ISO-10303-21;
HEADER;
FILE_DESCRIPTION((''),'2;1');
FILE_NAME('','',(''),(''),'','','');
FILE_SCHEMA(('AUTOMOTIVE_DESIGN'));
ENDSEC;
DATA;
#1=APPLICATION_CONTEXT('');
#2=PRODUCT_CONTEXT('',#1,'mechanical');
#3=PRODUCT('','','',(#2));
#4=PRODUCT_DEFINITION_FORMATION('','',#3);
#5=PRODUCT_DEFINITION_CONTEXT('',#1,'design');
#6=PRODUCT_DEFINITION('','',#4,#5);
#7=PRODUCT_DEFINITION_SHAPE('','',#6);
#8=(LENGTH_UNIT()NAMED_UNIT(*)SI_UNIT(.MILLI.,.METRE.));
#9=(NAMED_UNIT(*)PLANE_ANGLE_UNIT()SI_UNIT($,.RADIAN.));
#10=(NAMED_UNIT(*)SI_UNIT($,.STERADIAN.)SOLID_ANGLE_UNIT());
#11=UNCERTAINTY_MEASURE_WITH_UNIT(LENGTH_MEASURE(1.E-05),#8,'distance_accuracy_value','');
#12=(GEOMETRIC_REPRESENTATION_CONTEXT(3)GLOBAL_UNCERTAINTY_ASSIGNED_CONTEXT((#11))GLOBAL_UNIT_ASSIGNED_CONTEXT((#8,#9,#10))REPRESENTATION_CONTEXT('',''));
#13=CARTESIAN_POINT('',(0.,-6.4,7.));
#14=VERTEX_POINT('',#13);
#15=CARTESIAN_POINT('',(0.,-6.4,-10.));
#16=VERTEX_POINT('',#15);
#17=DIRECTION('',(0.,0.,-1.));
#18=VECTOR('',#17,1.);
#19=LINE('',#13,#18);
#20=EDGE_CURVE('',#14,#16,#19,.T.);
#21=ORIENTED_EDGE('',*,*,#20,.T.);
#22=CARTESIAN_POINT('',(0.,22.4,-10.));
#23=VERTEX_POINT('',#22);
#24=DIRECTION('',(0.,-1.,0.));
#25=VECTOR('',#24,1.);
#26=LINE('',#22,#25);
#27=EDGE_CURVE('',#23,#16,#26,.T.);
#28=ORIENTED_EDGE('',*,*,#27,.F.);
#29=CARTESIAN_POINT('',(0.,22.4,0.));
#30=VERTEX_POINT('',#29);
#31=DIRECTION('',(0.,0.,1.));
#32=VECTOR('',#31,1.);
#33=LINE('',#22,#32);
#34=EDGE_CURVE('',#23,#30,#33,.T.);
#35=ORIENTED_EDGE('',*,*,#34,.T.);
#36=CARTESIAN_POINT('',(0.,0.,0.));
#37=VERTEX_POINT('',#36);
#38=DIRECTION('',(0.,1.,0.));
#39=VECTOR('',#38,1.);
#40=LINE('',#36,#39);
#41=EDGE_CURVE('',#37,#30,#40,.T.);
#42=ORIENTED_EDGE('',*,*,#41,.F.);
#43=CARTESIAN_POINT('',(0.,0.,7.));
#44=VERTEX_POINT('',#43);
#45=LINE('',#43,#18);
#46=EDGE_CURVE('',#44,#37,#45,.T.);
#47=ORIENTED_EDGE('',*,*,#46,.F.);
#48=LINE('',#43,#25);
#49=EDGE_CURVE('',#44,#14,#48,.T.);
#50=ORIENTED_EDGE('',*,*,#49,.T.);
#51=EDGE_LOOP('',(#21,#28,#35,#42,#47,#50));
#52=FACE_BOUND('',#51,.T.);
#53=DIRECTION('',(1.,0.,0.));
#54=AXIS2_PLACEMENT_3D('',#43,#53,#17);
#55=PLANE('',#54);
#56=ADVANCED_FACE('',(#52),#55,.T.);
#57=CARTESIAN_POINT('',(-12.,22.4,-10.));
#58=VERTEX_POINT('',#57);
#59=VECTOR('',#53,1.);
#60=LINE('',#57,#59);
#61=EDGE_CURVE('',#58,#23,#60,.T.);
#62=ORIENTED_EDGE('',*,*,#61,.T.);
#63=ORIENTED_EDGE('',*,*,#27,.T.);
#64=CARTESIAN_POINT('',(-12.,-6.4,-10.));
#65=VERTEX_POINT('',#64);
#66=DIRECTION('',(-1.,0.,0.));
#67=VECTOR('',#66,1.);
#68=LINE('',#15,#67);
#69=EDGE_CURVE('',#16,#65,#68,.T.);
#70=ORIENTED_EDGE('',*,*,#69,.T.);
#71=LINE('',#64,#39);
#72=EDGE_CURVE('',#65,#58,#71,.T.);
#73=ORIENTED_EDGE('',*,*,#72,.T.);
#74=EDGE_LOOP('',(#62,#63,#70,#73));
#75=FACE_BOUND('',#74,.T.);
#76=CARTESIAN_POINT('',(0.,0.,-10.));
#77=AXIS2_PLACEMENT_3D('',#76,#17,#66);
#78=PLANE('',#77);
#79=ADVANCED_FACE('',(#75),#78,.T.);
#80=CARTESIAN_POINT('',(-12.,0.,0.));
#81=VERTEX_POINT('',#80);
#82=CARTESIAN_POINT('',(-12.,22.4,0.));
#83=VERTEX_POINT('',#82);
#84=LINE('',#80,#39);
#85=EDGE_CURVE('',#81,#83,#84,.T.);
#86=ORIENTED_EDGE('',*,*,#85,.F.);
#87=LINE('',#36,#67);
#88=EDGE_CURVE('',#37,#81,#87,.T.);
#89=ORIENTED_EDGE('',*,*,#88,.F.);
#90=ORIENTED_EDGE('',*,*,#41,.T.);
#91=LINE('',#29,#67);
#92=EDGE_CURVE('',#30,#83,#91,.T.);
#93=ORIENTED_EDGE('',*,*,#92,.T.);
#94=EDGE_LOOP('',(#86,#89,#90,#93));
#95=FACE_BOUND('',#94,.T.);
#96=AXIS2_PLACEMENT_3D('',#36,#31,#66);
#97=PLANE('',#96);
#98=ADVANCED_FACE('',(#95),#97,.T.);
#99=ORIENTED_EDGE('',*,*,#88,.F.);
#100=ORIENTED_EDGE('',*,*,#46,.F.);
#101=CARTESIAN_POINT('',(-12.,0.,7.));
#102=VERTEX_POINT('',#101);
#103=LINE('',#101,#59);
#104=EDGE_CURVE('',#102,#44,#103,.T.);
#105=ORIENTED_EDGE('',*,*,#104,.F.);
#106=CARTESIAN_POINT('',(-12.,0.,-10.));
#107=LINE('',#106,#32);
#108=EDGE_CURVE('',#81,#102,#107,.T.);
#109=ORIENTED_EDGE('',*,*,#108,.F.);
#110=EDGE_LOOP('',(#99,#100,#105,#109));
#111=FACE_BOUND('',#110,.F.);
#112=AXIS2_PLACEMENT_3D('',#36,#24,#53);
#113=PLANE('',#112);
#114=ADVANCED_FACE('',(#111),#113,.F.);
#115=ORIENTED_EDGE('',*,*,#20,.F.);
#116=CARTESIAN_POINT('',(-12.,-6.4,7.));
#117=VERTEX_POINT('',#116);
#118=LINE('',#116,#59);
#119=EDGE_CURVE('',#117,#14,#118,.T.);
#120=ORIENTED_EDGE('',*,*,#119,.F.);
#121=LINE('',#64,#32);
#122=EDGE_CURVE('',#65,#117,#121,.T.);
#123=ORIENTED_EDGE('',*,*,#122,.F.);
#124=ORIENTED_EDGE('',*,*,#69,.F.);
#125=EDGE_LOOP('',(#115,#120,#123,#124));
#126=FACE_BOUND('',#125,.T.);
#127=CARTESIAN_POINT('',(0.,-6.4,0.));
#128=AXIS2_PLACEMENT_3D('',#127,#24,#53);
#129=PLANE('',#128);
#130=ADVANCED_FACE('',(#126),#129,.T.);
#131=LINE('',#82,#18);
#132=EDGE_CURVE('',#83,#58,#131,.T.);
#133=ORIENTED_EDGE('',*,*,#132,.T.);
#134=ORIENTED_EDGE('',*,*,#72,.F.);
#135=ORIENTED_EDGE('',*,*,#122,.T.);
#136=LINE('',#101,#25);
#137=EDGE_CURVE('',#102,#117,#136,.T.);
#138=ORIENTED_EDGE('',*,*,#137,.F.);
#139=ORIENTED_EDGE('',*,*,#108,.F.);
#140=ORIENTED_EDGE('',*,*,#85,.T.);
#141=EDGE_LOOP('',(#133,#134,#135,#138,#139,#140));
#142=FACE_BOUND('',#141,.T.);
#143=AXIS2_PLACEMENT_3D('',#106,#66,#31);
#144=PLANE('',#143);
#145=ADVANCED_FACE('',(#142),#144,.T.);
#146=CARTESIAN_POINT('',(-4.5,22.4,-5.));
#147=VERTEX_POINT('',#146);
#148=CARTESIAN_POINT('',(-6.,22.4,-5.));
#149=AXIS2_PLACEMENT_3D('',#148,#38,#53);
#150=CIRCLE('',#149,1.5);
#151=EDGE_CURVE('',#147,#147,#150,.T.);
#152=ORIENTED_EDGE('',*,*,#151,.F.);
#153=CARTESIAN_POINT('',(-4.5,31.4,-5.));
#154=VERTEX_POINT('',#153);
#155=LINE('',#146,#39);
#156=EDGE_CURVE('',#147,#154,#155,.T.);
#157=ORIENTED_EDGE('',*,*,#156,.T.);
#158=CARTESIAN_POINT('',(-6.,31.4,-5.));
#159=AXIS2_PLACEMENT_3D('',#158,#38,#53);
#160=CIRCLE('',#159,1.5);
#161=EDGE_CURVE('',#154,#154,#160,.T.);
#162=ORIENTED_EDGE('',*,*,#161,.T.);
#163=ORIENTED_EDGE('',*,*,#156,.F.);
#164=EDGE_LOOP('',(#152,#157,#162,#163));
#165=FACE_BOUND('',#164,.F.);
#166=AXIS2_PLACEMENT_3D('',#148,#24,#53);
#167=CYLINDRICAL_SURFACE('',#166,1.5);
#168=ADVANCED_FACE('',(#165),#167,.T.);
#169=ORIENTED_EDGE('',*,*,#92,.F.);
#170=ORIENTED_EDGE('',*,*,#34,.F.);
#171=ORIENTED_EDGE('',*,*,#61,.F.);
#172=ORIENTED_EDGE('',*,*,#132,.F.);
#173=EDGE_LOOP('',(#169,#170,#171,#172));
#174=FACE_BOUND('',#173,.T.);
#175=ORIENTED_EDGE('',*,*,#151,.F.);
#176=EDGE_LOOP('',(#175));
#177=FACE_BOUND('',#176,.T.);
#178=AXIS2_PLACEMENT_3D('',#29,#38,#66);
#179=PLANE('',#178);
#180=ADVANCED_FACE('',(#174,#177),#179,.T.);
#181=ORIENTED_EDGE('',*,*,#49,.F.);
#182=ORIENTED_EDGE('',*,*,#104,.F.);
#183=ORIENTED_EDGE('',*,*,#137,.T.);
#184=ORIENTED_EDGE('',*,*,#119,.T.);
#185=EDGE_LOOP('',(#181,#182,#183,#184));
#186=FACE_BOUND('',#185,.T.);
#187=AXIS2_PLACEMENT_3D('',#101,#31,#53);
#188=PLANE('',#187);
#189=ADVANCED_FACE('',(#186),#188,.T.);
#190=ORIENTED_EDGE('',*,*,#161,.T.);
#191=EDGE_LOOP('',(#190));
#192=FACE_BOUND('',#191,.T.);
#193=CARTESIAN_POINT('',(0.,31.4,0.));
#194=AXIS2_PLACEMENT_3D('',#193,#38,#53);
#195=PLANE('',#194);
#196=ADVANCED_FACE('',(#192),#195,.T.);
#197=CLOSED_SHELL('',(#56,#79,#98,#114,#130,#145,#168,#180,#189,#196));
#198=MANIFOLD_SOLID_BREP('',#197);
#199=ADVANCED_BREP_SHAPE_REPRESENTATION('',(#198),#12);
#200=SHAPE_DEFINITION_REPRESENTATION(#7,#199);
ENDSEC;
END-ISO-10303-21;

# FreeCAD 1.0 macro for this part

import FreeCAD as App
import Part
import Sketcher
Q = App.Units.Quantity


def add_polygon(sketch, points):
    """Adds a closed chain of lines whose ends are joined by coincident constraints."""
    first, n = sketch.GeometryCount, len(points)
    for a, b in zip(points, points[1:] + points[:1]):
        sketch.addGeometry(Part.LineSegment(App.Vector(*a, 0), App.Vector(*b, 0)), False)
    for i in range(n):
        sketch.addConstraint(Sketcher.Constraint("Coincident", first + i, 2, first + (i + 1) % n, 1))

doc = App.newDocument("Part")
body = doc.addObject("PartDesign::Body", "Body")

sketch1 = doc.addObject("Sketcher::SketchObject", "Sketch")
body.addObject(sketch1)
sketch1.AttachmentSupport = (doc.XZ_Plane, [""])
sketch1.MapMode = "FlatFace"
add_polygon(sketch1, [(-12, 0), (0, 0), (0, -10), (-12, -10)])
sketch1.addConstraint(Sketcher.Constraint("Horizontal", 0))
sketch1.addConstraint(Sketcher.Constraint("Vertical", 1))
sketch1.addConstraint(Sketcher.Constraint("Horizontal", 2))
sketch1.addConstraint(Sketcher.Constraint("Vertical", 3))
sketch1.addConstraint(Sketcher.Constraint("Coincident", 0, 2, -1, 1))
sketch1.addConstraint(Sketcher.Constraint("DistanceX", 0, 1, 0, 2, Q("12 mm")))
sketch1.addConstraint(Sketcher.Constraint("DistanceY", 1, 2, 1, 1, Q("10 mm")))
pad1 = doc.addObject("PartDesign::Pad", "Pad")
body.addObject(pad1)
pad1.Profile = sketch1
pad1.Length = 22.4
pad1.Reversed = True

sketch2 = doc.addObject("Sketcher::SketchObject", "Sketch001")
body.addObject(sketch2)
sketch2.AttachmentSupport = (doc.XZ_Plane, [""])
sketch2.MapMode = "FlatFace"
sketch2.AttachmentOffset = App.Placement(App.Vector(0, 0, -22.4), App.Rotation())
sketch2.addGeometry(Part.Circle(App.Vector(-6, -5, 0), App.Vector(0, 0, 1), 1.5), False)
sketch2.addConstraint(Sketcher.Constraint("Diameter", 0, Q("3 mm")))
sketch2.addConstraint(Sketcher.Constraint("DistanceX", 0, 3, -1, 1, Q("6 mm")))
sketch2.addConstraint(Sketcher.Constraint("DistanceY", 0, 3, -1, 1, Q("5 mm")))
pad2 = doc.addObject("PartDesign::Pad", "Pad001")
body.addObject(pad2)
pad2.Profile = sketch2
pad2.Length = 9
pad2.Reversed = True

sketch3 = doc.addObject("Sketcher::SketchObject", "Sketch002")
body.addObject(sketch3)
sketch3.AttachmentSupport = (doc.XZ_Plane, [""])
sketch3.MapMode = "FlatFace"
add_polygon(sketch3, [(-12, -10), (0, -10), (0, 7), (-12, 7)])
sketch3.addConstraint(Sketcher.Constraint("Horizontal", 0))
sketch3.addConstraint(Sketcher.Constraint("Vertical", 1))
sketch3.addConstraint(Sketcher.Constraint("Horizontal", 2))
sketch3.addConstraint(Sketcher.Constraint("Vertical", 3))
sketch3.addConstraint(Sketcher.Constraint("PointOnObject", 0, 2, -2))
sketch3.addConstraint(Sketcher.Constraint("DistanceY", 1, 1, 1, 2, Q("17 mm")))
sketch3.addConstraint(Sketcher.Constraint("DistanceX", 0, 1, 0, 2, Q("12 mm")))
sketch3.addConstraint(Sketcher.Constraint("DistanceY", 0, 2, -1, 1, Q("10 mm")))
pad3 = doc.addObject("PartDesign::Pad", "Pad002")
body.addObject(pad3)
pad3.Profile = sketch3
pad3.Length = 6.4

doc.recompute()
